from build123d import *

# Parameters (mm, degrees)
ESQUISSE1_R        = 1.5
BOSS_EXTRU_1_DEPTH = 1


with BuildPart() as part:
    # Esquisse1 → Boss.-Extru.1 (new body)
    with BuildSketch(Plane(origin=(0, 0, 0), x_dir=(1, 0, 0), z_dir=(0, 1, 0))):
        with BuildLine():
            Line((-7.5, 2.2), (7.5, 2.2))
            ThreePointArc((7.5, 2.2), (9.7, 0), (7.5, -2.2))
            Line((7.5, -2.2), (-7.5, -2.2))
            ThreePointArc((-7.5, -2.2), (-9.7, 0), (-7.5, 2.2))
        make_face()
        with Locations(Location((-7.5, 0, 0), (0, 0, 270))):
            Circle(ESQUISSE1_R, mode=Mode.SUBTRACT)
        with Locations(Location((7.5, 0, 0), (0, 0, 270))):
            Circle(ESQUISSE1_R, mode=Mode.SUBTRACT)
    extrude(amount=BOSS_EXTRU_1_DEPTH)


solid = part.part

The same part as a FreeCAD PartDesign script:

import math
import FreeCAD as App
import Part
import Sketcher
from FreeCAD import Vector

doc = App.newDocument("Part")
body = doc.addObject("PartDesign::Body", "Body")

sketch1 = body.newObject("Sketcher::SketchObject", "Sketch")
sketch1.AttachmentSupport = (doc.getObject("XZ_Plane"), [""])
sketch1.MapMode = "FlatFace"
sketch1.addGeometry([
    Part.LineSegment(Vector(7.5, -2.2, 0), Vector(-7.5, -2.2, 0)),
    Part.ArcOfCircle(Part.Circle(Vector(-7.5, 0, 0), Vector(0, 0, 1), 2.2), math.radians(90), math.radians(270)),
    Part.LineSegment(Vector(-7.5, 2.2, 0), Vector(7.5, 2.2, 0)),
    Part.ArcOfCircle(Part.Circle(Vector(7.5, 0, 0), Vector(0, 0, 1), 2.2), math.radians(-90), math.radians(90)),
    Part.Circle(Vector(7.5, 0, 0), Vector(0, 0, 1), 1.5),
    Part.Circle(Vector(-7.5, 0, 0), Vector(0, 0, 1), 1.5),
], False)
sketch1.addConstraint([
    Sketcher.Constraint("Tangent", 0, 2, 1, 2),
    Sketcher.Constraint("Tangent", 1, 1, 2, 1),
    Sketcher.Constraint("Tangent", 2, 2, 3, 2),
    Sketcher.Constraint("Tangent", 3, 1, 0, 1),
    Sketcher.Constraint("Horizontal", 0),
    Sketcher.Constraint("Horizontal", 2),
    Sketcher.Constraint("Coincident", 4, 3, 3, 3),
    Sketcher.Constraint("Coincident", 5, 3, 1, 3),
    Sketcher.Constraint("Equal", 4, 5),
    Sketcher.Constraint("Symmetric", 1, 3, 3, 3, -1, 1),
    Sketcher.Constraint("Diameter", 4, 3.0),
    Sketcher.Constraint("Radius", 1, 2.2),
    Sketcher.Constraint("DistanceX", 0, 2, 0, 1, 15.0),
])
pad1 = body.newObject("PartDesign::Pad", "Pad")
pad1.Profile = sketch1
pad1.Length = 1
pad1.Reversed = True

doc.recompute()
